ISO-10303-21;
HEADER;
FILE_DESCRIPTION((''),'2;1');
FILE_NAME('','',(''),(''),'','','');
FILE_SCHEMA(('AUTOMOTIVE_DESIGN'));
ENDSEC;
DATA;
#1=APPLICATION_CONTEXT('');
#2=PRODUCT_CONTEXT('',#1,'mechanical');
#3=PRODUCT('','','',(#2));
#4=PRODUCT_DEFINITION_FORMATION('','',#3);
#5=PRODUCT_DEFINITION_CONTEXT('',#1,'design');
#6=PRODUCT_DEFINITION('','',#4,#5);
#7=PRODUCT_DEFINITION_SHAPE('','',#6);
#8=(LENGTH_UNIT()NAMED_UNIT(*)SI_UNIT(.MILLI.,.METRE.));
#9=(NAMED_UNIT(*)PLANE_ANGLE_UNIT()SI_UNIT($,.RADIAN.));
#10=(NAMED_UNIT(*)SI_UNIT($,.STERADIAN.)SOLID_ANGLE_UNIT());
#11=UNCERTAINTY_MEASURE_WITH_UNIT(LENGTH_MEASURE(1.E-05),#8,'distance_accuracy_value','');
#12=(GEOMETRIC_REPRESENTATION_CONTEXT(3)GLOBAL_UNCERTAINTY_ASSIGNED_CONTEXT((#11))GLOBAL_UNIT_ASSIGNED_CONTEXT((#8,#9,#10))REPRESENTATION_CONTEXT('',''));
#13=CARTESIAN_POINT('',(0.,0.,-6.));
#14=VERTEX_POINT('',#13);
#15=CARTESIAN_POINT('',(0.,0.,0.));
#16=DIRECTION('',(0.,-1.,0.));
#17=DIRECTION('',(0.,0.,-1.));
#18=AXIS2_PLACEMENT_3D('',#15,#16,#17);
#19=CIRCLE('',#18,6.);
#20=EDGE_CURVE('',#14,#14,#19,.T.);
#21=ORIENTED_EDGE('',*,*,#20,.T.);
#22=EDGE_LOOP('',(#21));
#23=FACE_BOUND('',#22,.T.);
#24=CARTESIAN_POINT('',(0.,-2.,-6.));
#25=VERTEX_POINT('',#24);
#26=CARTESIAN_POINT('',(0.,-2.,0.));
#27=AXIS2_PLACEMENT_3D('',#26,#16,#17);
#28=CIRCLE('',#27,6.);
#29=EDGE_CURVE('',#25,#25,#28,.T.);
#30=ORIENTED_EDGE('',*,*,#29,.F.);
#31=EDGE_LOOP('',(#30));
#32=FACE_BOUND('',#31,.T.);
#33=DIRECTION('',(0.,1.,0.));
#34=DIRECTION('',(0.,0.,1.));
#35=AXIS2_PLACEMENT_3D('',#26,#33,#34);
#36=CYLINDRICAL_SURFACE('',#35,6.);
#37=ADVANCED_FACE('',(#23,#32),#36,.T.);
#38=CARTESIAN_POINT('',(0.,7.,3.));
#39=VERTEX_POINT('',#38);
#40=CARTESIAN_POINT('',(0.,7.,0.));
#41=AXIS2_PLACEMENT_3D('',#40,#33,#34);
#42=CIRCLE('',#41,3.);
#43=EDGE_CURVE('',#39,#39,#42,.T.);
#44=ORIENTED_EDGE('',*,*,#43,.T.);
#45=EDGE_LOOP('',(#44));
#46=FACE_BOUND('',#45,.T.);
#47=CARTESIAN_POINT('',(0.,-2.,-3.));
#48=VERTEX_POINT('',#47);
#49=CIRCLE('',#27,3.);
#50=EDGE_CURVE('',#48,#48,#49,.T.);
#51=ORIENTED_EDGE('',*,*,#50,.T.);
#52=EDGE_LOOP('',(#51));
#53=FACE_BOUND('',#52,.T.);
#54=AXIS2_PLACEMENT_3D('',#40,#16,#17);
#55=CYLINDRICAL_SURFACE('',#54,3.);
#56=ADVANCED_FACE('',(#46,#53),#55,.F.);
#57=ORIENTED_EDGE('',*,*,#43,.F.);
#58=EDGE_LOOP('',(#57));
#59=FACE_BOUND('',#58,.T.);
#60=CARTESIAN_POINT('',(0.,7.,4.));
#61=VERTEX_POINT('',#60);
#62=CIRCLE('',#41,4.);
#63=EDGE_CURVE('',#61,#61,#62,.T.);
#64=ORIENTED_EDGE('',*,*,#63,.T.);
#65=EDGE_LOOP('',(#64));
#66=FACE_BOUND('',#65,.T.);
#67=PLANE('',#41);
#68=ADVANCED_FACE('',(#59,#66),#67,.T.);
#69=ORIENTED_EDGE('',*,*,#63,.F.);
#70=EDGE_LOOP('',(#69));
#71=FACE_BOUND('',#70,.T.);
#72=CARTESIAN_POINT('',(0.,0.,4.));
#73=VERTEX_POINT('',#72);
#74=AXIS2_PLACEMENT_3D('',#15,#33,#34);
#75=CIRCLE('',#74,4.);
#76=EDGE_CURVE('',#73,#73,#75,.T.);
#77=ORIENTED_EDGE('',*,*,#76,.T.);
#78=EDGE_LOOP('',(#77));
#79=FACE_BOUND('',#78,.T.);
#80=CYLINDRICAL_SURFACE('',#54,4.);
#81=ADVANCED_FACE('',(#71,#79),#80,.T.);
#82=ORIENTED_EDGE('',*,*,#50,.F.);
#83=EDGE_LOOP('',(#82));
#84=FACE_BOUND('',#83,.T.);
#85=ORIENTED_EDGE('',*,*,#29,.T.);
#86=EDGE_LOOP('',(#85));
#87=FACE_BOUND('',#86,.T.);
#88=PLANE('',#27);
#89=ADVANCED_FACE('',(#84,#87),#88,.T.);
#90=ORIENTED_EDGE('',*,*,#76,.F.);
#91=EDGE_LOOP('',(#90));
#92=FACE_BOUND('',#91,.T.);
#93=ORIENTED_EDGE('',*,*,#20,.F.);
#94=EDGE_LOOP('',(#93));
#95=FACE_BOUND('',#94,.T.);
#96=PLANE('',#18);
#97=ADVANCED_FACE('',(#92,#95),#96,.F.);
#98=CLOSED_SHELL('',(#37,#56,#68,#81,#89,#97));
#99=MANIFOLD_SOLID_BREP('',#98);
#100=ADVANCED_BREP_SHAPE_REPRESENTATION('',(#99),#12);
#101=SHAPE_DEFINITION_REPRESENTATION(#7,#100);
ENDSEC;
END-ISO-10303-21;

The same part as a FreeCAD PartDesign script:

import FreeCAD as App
import Part
import Sketcher
Q = App.Units.Quantity

doc = App.newDocument("Part")
body = doc.addObject("PartDesign::Body", "Body")

# Sketch on XZ plane
sketch1 = body.newObject("Sketcher::SketchObject", "Sketch")
sketch1.AttachmentSupport = (doc.getObject("XZ_Plane"), [""])
sketch1.MapMode = "FlatFace"
sketch1.addGeometry([
    Part.Circle(App.Vector(0, 0, 0), App.Vector(0, 0, 1), 4),
    Part.Circle(App.Vector(0, 0, 0), App.Vector(0, 0, 1), 3),
], False)
sketch1.addConstraint([
    Sketcher.Constraint("Coincident", 0, 3, -1, 1),
    Sketcher.Constraint("Coincident", 1, 3, -1, 1),
    Sketcher.Constraint("Diameter", 0, Q("8 mm")),
    Sketcher.Constraint("Diameter", 1, Q("6 mm")),
])
pad1 = body.newObject("PartDesign::Pad", "Pad")
pad1.Profile = sketch1
pad1.Length = 7
pad1.Reversed = True

# Sketch on XZ plane
sketch2 = body.newObject("Sketcher::SketchObject", "Sketch001")
sketch2.AttachmentSupport = (doc.getObject("XZ_Plane"), [""])
sketch2.MapMode = "FlatFace"
sketch2.AttachmentOffset = App.Placement(App.Vector(0, 0, 2), App.Rotation())
sketch2.addGeometry([
    Part.Circle(App.Vector(0, 0, 0), App.Vector(0, 0, 1), 6),
    Part.Circle(App.Vector(0, 0, 0), App.Vector(0, 0, 1), 3),
], False)
sketch2.addConstraint([
    Sketcher.Constraint("Coincident", 0, 3, -1, 1),
    Sketcher.Constraint("Coincident", 1, 3, -1, 1),
    Sketcher.Constraint("Diameter", 0, Q("12 mm")),
    Sketcher.Constraint("Diameter", 1, Q("6 mm")),
])
pad2 = body.newObject("PartDesign::Pad", "Pad001")
pad2.Profile = sketch2
pad2.Length = 2
pad2.Reversed = True

doc.recompute()
